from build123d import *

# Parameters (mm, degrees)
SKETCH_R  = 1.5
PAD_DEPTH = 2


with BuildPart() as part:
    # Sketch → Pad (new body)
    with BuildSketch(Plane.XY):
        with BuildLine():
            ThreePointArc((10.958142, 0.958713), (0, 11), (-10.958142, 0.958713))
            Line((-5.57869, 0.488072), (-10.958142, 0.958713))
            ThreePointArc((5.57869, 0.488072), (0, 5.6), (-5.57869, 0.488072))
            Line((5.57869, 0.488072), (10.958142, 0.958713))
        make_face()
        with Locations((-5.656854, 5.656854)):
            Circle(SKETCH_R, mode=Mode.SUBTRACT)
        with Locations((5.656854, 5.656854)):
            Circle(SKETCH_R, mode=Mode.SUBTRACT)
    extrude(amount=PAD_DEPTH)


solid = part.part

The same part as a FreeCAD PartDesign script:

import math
import FreeCAD as App
import Part
import Sketcher

V = App.Vector
Q = App.Units.Quantity

doc = App.newDocument("Part")
body = doc.addObject("PartDesign::Body", "Body")

# Sketch on XY plane
sketch1 = body.newObject("Sketcher::SketchObject", "Sketch")
sketch1.AttachmentSupport = (doc.getObject("XY_Plane"), [""])
sketch1.MapMode = "FlatFace"
sketch1.addGeometry(Part.ArcOfCircle(Part.Circle(V(0, 0, 0), V(0, 0, 1), 11), math.radians(5.000001), math.radians(174.999999)), False)
sketch1.addGeometry(Part.LineSegment(V(-10.958142, 0.958713, 0), V(-5.57869, 0.488072, 0)), False)
sketch1.addGeometry(Part.ArcOfCircle(Part.Circle(V(0, 0, 0), V(0, 0, 1), 5.6), math.radians(4.999995), math.radians(175.000005)), False)
sketch1.addGeometry(Part.LineSegment(V(5.57869, 0.488072, 0), V(10.958142, 0.958713, 0)), False)
sketch1.addGeometry(Part.Circle(V(-5.656854, 5.656854, 0), V(0, 0, 1), 1.5), False)
sketch1.addGeometry(Part.Circle(V(5.656854, 5.656854, 0), V(0, 0, 1), 1.5), False)
sketch1.addConstraint(Sketcher.Constraint("Coincident", 0, 2, 1, 1))
sketch1.addConstraint(Sketcher.Constraint("Coincident", 1, 2, 2, 2))
sketch1.addConstraint(Sketcher.Constraint("Coincident", 2, 1, 3, 1))
sketch1.addConstraint(Sketcher.Constraint("Coincident", 3, 2, 0, 1))
sketch1.addConstraint(Sketcher.Constraint("Coincident", 0, 3, -1, 1))
sketch1.addConstraint(Sketcher.Constraint("Coincident", 2, 3, -1, 1))
sketch1.addConstraint(Sketcher.Constraint("Equal", 4, 5))
sketch1.addConstraint(Sketcher.Constraint("Symmetric", 4, 3, 5, 3, -2))
sketch1.addConstraint(Sketcher.Constraint("Horizontal", 1, 2, 2, 1))
sketch1.addConstraint(Sketcher.Constraint("Horizontal", 0, 2, 3, 2))
sketch1.addConstraint(Sketcher.Constraint("Diameter", 4, 3.0))
sketch1.addConstraint(Sketcher.Constraint("Radius", 0, 11.0))
sketch1.addConstraint(Sketcher.Constraint("Radius", 2, 5.6))
sketch1.addConstraint(Sketcher.Constraint("Angle", 1, Q("-4.999999 deg")))
sketch1.addConstraint(Sketcher.Constraint("DistanceX", 0, 2, -1, 1, 10.958142))
sketch1.addConstraint(Sketcher.Constraint("DistanceY", 0, 2, 4, 3, 4.698141))
sketch1.addConstraint(Sketcher.Constraint("DistanceX", 5, 3, 3, 2, 5.301288))
pad1 = body.newObject("PartDesign::Pad", "Pad")
pad1.Profile = sketch1
pad1.Length = 2

doc.recompute()
